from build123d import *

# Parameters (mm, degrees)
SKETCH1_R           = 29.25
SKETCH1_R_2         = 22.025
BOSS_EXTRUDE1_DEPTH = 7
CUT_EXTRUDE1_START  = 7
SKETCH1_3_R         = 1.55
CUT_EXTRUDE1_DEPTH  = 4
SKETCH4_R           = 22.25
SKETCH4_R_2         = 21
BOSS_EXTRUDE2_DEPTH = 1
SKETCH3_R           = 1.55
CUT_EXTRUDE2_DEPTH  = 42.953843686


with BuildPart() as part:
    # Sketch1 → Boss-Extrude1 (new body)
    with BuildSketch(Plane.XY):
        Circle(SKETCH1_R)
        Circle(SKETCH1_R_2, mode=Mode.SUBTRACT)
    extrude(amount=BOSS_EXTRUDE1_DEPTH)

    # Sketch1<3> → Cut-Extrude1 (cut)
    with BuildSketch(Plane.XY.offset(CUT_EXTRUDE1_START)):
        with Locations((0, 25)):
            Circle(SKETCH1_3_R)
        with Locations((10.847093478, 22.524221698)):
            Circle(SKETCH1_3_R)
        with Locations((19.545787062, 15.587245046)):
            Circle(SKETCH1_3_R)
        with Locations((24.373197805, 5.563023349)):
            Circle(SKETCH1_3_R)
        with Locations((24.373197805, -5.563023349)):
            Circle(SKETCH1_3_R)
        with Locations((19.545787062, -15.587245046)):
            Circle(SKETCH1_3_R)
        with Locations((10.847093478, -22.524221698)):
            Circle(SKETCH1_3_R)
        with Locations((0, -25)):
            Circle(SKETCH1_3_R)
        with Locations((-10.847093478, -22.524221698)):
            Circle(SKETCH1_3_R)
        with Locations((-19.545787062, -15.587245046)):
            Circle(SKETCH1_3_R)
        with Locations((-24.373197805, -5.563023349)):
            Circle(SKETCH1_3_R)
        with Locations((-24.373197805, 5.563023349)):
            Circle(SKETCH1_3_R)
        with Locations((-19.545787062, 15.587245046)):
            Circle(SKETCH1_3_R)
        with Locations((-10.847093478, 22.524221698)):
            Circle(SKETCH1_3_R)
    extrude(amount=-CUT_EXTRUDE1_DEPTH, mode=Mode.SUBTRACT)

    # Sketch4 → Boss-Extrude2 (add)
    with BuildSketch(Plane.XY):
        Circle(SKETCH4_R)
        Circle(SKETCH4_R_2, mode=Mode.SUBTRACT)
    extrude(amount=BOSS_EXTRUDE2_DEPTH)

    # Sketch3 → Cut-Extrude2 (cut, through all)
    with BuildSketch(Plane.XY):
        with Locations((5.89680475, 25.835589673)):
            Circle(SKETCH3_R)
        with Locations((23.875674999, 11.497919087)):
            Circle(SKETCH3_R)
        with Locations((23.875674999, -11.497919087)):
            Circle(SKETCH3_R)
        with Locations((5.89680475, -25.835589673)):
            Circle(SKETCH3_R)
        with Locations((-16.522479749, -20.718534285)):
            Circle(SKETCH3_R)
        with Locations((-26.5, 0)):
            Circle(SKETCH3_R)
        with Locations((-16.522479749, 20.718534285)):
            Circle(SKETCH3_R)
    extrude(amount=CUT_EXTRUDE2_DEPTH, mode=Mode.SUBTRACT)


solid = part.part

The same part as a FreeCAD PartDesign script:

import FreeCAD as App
import Part
import Sketcher
from FreeCAD import Vector
Q = App.Units.Quantity

doc = App.newDocument("Part")
body = doc.addObject("PartDesign::Body", "Body")

# Sketch on XY plane
sketch1 = body.newObject("Sketcher::SketchObject", "Sketch")
sketch1.AttachmentSupport = (doc.getObject("XY_Plane"), [""])
sketch1.MapMode = "FlatFace"
sketch1.addGeometry([
    Part.Circle(Vector(0, 0, 0), Vector(0, 0, 1), 29),
    Part.Circle(Vector(0, 0, 0), Vector(0, 0, 1), 22),
], False)
sketch1.addConstraint([
    Sketcher.Constraint("Coincident", 0, 3, -1, 1),
    Sketcher.Constraint("Coincident", 1, 3, -1, 1),
    Sketcher.Constraint("Diameter", 0, Q("58.5 mm")),
    Sketcher.Constraint("Diameter", 1, Q("44.05 mm")),
])
pad1 = body.newObject("PartDesign::Pad", "Pad")
pad1.Profile = sketch1
pad1.Length = 7

# Sketch on XY plane
sketch2 = body.newObject("Sketcher::SketchObject", "Sketch001")
sketch2.AttachmentSupport = (doc.getObject("XY_Plane"), [""])
sketch2.MapMode = "FlatFace"
sketch2.AttachmentOffset = App.Placement(Vector(0, 0, 7), App.Rotation())
sketch2.addGeometry([
    Part.Circle(Vector(0, 25, 0), Vector(0, 0, 1), 1.6),  # 0
    Part.Circle(Vector(10.8, 22.5, 0), Vector(0, 0, 1), 1.6),  # 1
    Part.Circle(Vector(19.5, 15.6, 0), Vector(0, 0, 1), 1.6),  # 2
    Part.Circle(Vector(24.4, 5.6, 0), Vector(0, 0, 1), 1.6),  # 3
    Part.Circle(Vector(24.4, -5.6, 0), Vector(0, 0, 1), 1.6),  # 4
    Part.Circle(Vector(19.5, -15.6, 0), Vector(0, 0, 1), 1.6),  # 5
    Part.Circle(Vector(10.8, -22.5, 0), Vector(0, 0, 1), 1.6),  # 6
    Part.Circle(Vector(0, -25, 0), Vector(0, 0, 1), 1.6),  # 7
    Part.Circle(Vector(-10.8, -22.5, 0), Vector(0, 0, 1), 1.6),  # 8
    Part.Circle(Vector(-19.5, -15.6, 0), Vector(0, 0, 1), 1.6),  # 9
    Part.Circle(Vector(-24.4, -5.6, 0), Vector(0, 0, 1), 1.6),  # 10
    Part.Circle(Vector(-24.4, 5.6, 0), Vector(0, 0, 1), 1.6),  # 11
    Part.Circle(Vector(-19.5, 15.6, 0), Vector(0, 0, 1), 1.6),  # 12
    Part.Circle(Vector(-10.8, 22.5, 0), Vector(0, 0, 1), 1.6),  # 13
], False)
sketch2.addConstraint([
    Sketcher.Constraint("Equal", 0, 1),
    Sketcher.Constraint("Equal", 1, 2),
    Sketcher.Constraint("Equal", 2, 3),
    Sketcher.Constraint("Equal", 3, 4),
    Sketcher.Constraint("Equal", 4, 5),
    Sketcher.Constraint("Equal", 5, 6),
    Sketcher.Constraint("Equal", 6, 7),
    Sketcher.Constraint("Equal", 7, 8),
    Sketcher.Constraint("Equal", 8, 9),
    Sketcher.Constraint("Equal", 9, 10),
    Sketcher.Constraint("Equal", 10, 11),
    Sketcher.Constraint("Equal", 11, 12),
    Sketcher.Constraint("Equal", 12, 13),
    Sketcher.Constraint("Symmetric", 0, 3, 7, 3, -1, 1),
    Sketcher.Constraint("Symmetric", 1, 3, 8, 3, -1, 1),
    Sketcher.Constraint("Symmetric", 2, 3, 9, 3, -1, 1),
    Sketcher.Constraint("Symmetric", 3, 3, 10, 3, -1, 1),
    Sketcher.Constraint("Symmetric", 4, 3, 11, 3, -1, 1),
    Sketcher.Constraint("Symmetric", 5, 3, 12, 3, -1, 1),
    Sketcher.Constraint("Symmetric", 6, 3, 13, 3, -1, 1),
    Sketcher.Constraint("Symmetric", 6, 3, 8, 3, -2),
    Sketcher.Constraint("Symmetric", 5, 3, 9, 3, -2),
    Sketcher.Constraint("Symmetric", 4, 3, 10, 3, -2),
    Sketcher.Constraint("PointOnObject", 0, 3, -2),
    Sketcher.Constraint("Diameter", 0, Q("3.1 mm")),
    Sketcher.Constraint("DistanceY", -1, 1, 0, 3, Q("25 mm")),
    Sketcher.Constraint("DistanceY", 3, 3, 1, 3, Q("16.961198 mm")),
    Sketcher.Constraint("DistanceY", -1, 1, 1, 3, Q("22.524222 mm")),
    Sketcher.Constraint("DistanceX", 2, 3, 3, 3, Q("4.827411 mm")),
    Sketcher.Constraint("DistanceY", 3, 3, 2, 3, Q("10.024222 mm")),
    Sketcher.Constraint("DistanceX", 8, 3, 5, 3, Q("30.392881 mm")),
    Sketcher.Constraint("DistanceX", -1, 1, 1, 3, Q("10.847093 mm")),
])
pocket1 = body.newObject("PartDesign::Pocket", "Pocket")
pocket1.Profile = sketch2
pocket1.Length = 4

# Sketch on XY plane
sketch3 = body.newObject("Sketcher::SketchObject", "Sketch002")
sketch3.AttachmentSupport = (doc.getObject("XY_Plane"), [""])
sketch3.MapMode = "FlatFace"
sketch3.addGeometry([
    Part.Circle(Vector(0, 0, 0), Vector(0, 0, 1), 22),
    Part.Circle(Vector(0, 0, 0), Vector(0, 0, 1), 21),
], False)
sketch3.addConstraint([
    Sketcher.Constraint("Coincident", 0, 3, -1, 1),
    Sketcher.Constraint("Coincident", 1, 3, -1, 1),
    Sketcher.Constraint("Diameter", 1, Q("42 mm")),
    Sketcher.Constraint("Diameter", 0, Q("44.5 mm")),
])
pad2 = body.newObject("PartDesign::Pad", "Pad001")
pad2.Profile = sketch3
pad2.Length = 1

# Sketch on XY plane
sketch4 = body.newObject("Sketcher::SketchObject", "Sketch003")
sketch4.AttachmentSupport = (doc.getObject("XY_Plane"), [""])
sketch4.MapMode = "FlatFace"
sketch4.addGeometry([
    Part.Circle(Vector(5.9, 25.8, 0), Vector(0, 0, 1), 1.6),  # 0
    Part.Circle(Vector(23.9, 11.5, 0), Vector(0, 0, 1), 1.6),  # 1
    Part.Circle(Vector(23.9, -11.5, 0), Vector(0, 0, 1), 1.6),  # 2
    Part.Circle(Vector(5.9, -25.8, 0), Vector(0, 0, 1), 1.6),  # 3
    Part.Circle(Vector(-16.5, -20.7, 0), Vector(0, 0, 1), 1.6),  # 4
    Part.Circle(Vector(-26.5, 0, 0), Vector(0, 0, 1), 1.6),  # 5
    Part.Circle(Vector(-16.5, 20.7, 0), Vector(0, 0, 1), 1.6),  # 6
], False)
sketch4.addConstraint([
    Sketcher.Constraint("Equal", 0, 1),
    Sketcher.Constraint("Equal", 1, 2),
    Sketcher.Constraint("Equal", 2, 3),
    Sketcher.Constraint("Equal", 3, 4),
    Sketcher.Constraint("Equal", 4, 5),
    Sketcher.Constraint("Equal", 5, 6),
    Sketcher.Constraint("Symmetric", 1, 3, 2, 3, -1),
    Sketcher.Constraint("Symmetric", 0, 3, 3, 3, -1),
    Sketcher.Constraint("Symmetric", 4, 3, 6, 3, -1),
    Sketcher.Constraint("PointOnObject", 5, 3, -1),
    Sketcher.Constraint("Diameter", 0, Q("3.1 mm")),
    Sketcher.Constraint("DistanceX", 5, 3, -1, 1, Q("26.5 mm")),
    Sketcher.Constraint("DistanceY", -1, 1, 0, 3, Q("25.83559 mm")),
    Sketcher.Constraint("DistanceY", -1, 1, 1, 3, Q("11.497919 mm")),
    Sketcher.Constraint("DistanceX", 4, 3, -1, 1, Q("16.52248 mm")),
    Sketcher.Constraint("DistanceX", 0, 3, 1, 3, Q("17.97887 mm")),
    Sketcher.Constraint("DistanceY", 4, 3, 6, 3, Q("41.437069 mm")),
    Sketcher.Constraint("DistanceX", -1, 1, 0, 3, Q("5.896805 mm")),
])
pocket2 = body.newObject("PartDesign::Pocket", "Pocket001")
pocket2.Profile = sketch4
pocket2.Type = "ThroughAll"
pocket2.Reversed = True

doc.recompute()
